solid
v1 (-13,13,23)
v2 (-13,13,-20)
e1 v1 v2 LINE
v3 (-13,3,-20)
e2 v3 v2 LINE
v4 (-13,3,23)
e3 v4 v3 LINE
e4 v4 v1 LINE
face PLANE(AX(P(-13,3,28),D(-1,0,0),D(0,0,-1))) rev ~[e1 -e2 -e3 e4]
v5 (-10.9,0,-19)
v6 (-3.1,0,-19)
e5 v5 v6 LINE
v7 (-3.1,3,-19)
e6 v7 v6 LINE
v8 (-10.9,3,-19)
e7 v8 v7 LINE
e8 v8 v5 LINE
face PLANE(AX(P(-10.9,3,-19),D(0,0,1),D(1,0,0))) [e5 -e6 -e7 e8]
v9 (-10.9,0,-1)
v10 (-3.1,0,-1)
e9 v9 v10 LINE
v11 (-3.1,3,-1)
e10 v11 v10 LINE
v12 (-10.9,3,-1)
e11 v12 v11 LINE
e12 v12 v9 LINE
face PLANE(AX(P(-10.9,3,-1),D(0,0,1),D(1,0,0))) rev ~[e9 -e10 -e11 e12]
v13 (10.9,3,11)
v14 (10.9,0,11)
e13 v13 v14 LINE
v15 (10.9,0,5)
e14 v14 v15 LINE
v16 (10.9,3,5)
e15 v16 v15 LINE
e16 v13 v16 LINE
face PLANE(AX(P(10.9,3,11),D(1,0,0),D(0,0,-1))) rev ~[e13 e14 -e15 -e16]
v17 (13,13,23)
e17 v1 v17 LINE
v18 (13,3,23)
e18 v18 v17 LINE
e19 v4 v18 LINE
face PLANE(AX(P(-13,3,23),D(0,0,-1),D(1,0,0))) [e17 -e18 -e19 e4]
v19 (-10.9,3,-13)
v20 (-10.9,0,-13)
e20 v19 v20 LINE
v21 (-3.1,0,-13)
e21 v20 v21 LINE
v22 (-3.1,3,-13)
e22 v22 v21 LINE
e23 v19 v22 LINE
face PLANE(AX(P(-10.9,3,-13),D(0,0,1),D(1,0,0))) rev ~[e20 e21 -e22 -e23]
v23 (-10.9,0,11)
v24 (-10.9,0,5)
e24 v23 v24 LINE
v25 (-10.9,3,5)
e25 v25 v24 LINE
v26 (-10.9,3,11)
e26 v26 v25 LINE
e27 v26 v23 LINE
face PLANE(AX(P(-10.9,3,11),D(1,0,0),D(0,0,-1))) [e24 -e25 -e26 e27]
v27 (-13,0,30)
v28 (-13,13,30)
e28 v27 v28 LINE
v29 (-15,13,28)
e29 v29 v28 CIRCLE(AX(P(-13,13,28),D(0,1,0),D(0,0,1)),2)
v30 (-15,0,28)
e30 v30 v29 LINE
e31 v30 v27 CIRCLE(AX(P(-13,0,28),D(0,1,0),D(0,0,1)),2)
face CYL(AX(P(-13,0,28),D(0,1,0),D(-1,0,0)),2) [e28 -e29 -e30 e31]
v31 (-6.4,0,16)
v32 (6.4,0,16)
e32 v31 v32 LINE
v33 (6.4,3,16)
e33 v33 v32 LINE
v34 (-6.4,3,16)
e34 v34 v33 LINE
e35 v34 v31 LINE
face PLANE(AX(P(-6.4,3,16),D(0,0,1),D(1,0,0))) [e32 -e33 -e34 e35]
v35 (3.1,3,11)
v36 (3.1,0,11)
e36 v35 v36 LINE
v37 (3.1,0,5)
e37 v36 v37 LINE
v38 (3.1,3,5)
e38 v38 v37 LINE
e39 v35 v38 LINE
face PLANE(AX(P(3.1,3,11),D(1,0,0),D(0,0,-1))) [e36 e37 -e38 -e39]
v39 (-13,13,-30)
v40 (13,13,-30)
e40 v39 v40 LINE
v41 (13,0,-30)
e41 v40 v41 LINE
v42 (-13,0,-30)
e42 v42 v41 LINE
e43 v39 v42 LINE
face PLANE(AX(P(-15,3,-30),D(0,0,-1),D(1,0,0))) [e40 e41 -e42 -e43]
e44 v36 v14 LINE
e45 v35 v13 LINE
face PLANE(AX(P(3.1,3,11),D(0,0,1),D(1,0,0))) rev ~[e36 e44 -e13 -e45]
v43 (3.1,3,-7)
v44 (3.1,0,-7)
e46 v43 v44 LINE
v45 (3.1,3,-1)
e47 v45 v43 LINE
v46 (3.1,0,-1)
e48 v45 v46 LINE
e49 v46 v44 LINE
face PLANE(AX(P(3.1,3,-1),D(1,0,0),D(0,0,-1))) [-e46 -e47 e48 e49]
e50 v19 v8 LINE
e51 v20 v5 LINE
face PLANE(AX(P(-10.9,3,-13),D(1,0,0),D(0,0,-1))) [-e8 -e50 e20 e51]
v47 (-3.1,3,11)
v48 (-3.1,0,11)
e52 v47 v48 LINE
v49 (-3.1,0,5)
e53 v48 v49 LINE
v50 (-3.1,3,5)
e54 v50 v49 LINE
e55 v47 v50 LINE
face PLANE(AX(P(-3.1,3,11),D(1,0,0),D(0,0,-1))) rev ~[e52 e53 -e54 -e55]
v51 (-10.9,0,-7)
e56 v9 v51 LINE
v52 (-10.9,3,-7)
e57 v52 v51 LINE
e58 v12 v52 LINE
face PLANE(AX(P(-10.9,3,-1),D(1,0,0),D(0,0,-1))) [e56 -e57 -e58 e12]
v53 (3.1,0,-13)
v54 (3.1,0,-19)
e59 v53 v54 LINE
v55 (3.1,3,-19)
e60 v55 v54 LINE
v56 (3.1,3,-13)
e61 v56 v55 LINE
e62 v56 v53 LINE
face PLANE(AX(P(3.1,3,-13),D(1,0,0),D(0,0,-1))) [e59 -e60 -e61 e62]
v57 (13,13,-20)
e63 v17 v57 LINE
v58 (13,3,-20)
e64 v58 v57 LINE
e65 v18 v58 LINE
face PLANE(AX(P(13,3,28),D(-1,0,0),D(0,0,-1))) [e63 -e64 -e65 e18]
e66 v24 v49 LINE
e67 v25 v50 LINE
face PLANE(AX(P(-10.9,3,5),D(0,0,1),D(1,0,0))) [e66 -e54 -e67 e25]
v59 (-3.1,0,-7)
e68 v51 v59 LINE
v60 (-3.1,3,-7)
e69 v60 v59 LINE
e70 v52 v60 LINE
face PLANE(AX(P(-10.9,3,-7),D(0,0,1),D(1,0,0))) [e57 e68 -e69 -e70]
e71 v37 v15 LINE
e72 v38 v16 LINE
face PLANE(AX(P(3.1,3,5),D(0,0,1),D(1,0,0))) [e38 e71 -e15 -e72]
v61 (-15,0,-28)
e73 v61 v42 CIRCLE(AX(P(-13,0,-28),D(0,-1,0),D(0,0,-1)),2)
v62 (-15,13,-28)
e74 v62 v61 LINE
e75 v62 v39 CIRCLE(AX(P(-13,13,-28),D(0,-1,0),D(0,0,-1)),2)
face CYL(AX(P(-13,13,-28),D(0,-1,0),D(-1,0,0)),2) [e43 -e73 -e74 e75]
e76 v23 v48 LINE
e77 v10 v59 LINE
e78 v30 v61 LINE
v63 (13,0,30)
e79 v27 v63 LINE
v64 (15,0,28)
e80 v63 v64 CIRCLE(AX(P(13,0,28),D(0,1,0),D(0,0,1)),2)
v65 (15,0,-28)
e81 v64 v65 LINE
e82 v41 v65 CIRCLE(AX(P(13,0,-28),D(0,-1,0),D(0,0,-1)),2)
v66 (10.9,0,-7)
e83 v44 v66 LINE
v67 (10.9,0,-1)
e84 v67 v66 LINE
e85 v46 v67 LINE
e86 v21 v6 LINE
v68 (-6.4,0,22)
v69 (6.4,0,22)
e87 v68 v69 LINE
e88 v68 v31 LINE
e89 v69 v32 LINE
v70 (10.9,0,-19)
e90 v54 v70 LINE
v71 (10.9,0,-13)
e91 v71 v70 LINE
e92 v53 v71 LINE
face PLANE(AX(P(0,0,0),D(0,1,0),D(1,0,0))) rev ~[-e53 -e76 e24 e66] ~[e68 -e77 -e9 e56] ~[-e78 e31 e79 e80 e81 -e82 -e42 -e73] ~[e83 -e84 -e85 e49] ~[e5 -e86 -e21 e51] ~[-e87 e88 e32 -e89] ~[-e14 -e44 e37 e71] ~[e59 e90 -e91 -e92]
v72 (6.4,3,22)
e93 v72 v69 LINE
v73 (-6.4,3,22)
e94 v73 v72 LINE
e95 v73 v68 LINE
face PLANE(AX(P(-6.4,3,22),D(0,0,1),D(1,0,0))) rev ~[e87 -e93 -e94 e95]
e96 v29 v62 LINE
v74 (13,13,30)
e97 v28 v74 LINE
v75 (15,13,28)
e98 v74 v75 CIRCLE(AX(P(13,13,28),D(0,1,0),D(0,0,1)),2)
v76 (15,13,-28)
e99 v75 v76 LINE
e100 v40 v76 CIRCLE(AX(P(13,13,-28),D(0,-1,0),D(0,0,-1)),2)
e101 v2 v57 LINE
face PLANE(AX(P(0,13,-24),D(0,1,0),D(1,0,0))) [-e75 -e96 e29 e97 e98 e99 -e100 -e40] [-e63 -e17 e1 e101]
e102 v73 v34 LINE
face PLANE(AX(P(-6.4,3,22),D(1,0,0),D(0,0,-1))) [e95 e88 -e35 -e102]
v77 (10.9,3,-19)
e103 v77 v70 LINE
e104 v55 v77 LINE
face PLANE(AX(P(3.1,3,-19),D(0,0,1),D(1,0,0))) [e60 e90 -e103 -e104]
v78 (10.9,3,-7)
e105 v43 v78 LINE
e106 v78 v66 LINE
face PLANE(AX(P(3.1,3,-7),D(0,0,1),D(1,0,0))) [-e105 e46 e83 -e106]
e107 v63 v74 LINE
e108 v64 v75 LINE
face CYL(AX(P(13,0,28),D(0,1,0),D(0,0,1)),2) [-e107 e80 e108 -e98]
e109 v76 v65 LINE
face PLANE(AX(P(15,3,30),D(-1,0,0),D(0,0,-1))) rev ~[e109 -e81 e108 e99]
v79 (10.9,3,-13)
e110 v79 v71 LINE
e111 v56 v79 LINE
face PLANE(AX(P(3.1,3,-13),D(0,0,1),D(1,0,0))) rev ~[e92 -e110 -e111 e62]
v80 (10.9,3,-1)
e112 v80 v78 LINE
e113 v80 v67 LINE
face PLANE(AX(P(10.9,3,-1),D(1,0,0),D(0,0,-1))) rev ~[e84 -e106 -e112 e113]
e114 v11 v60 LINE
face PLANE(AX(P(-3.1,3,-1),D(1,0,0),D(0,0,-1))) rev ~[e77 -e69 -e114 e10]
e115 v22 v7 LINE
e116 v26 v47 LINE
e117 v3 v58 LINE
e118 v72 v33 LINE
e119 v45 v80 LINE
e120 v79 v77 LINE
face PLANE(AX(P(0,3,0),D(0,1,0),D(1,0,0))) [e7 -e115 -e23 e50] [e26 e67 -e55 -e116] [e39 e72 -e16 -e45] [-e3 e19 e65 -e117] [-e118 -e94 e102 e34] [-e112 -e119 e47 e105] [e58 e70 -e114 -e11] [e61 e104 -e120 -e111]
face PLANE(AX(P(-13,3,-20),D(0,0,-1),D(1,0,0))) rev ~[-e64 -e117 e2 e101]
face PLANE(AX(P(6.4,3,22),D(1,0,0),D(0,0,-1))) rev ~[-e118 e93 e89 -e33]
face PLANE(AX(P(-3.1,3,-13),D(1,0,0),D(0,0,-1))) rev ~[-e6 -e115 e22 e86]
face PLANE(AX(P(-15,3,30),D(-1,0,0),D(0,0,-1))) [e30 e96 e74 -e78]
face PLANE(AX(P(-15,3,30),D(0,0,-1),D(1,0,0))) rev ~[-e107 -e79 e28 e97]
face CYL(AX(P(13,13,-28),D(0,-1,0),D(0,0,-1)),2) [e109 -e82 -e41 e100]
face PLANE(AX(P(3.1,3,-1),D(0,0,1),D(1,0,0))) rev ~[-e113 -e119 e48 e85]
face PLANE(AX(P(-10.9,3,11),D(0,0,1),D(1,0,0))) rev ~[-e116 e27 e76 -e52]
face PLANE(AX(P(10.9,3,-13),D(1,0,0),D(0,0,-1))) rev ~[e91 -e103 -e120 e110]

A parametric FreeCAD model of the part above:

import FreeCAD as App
import Part
import Sketcher

V = App.Vector
Q = App.Units.Quantity


def edges_at(feature, points):
    """Names of the edges that pass closest to the given points."""
    edges = feature.Shape.Edges
    near = lambda p: min(range(len(edges)), key=lambda i: edges[i].distToShape(Part.Vertex(*p))[0])
    return sorted({f"Edge{near(p) + 1}" for p in points})

doc = App.newDocument("Part")
body = doc.addObject("PartDesign::Body", "Body")

sketch1 = body.newObject("Sketcher::SketchObject", "Sketch")
sketch1.AttachmentSupport = (doc.getObject("XZ_Plane"), [""])
sketch1.MapMode = "FlatFace"
sketch1.addGeometry([
    Part.LineSegment(V(-15, -30, 0), V(-15, 30, 0)),
    Part.LineSegment(V(-15, 30, 0), V(15, 30, 0)),
    Part.LineSegment(V(15, 30, 0), V(15, -30, 0)),
    Part.LineSegment(V(15, -30, 0), V(-15, -30, 0)),
], False)
sketch1.addConstraint([
    Sketcher.Constraint("Coincident", 0, 2, 1, 1),
    Sketcher.Constraint("Coincident", 1, 2, 2, 1),
    Sketcher.Constraint("Coincident", 2, 2, 3, 1),
    Sketcher.Constraint("Coincident", 3, 2, 0, 1),
    Sketcher.Constraint("Vertical", 0),
    Sketcher.Constraint("Horizontal", 1),
    Sketcher.Constraint("Vertical", 2),
    Sketcher.Constraint("Horizontal", 3),
    Sketcher.Constraint("Symmetric", 0, 2, 2, 2, -1, 1),
    Sketcher.Constraint("DistanceX", 1, 1, 1, 2, Q("30 mm")),
    Sketcher.Constraint("DistanceY", 0, 1, 0, 2, Q("60 mm")),
])
pad1 = body.newObject("PartDesign::Pad", "Pad")
pad1.Profile = sketch1
pad1.Length = 3
pad1.Reversed = True

sketch2 = body.newObject("Sketcher::SketchObject", "Sketch001")
sketch2.AttachmentSupport = (doc.getObject("XZ_Plane"), [""])
sketch2.MapMode = "FlatFace"
sketch2.AttachmentOffset = App.Placement(V(0, 0, -3), App.Rotation())
sketch2.addGeometry([
    Part.LineSegment(V(-6.4, 16, 0), V(-6.4, 22, 0)),
    Part.LineSegment(V(-6.4, 22, 0), V(6.4, 22, 0)),
    Part.LineSegment(V(6.4, 22, 0), V(6.4, 16, 0)),
    Part.LineSegment(V(6.4, 16, 0), V(-6.4, 16, 0)),
    Part.LineSegment(V(-10.9, -7, 0), V(-10.9, -1, 0)),
    Part.LineSegment(V(-10.9, -1, 0), V(-3.1, -1, 0)),
    Part.LineSegment(V(-3.1, -1, 0), V(-3.1, -7, 0)),
    Part.LineSegment(V(-3.1, -7, 0), V(-10.9, -7, 0)),
    Part.LineSegment(V(-10.9, 5, 0), V(-10.9, 11, 0)),
    Part.LineSegment(V(-10.9, 11, 0), V(-3.1, 11, 0)),
    Part.LineSegment(V(-3.1, 11, 0), V(-3.1, 5, 0)),
    Part.LineSegment(V(-3.1, 5, 0), V(-10.9, 5, 0)),
    Part.LineSegment(V(-10.9, -19, 0), V(-10.9, -13, 0)),
    Part.LineSegment(V(-10.9, -13, 0), V(-3.1, -13, 0)),
    Part.LineSegment(V(-3.1, -13, 0), V(-3.1, -19, 0)),
    Part.LineSegment(V(-3.1, -19, 0), V(-10.9, -19, 0)),
    Part.LineSegment(V(3.1, 5, 0), V(3.1, 11, 0)),
    Part.LineSegment(V(3.1, 11, 0), V(10.9, 11, 0)),
    Part.LineSegment(V(10.9, 11, 0), V(10.9, 5, 0)),
    Part.LineSegment(V(10.9, 5, 0), V(3.1, 5, 0)),
    Part.LineSegment(V(3.1, -7, 0), V(3.1, -1, 0)),
    Part.LineSegment(V(3.1, -1, 0), V(10.9, -1, 0)),
    Part.LineSegment(V(10.9, -1, 0), V(10.9, -7, 0)),
    Part.LineSegment(V(10.9, -7, 0), V(3.1, -7, 0)),
    Part.LineSegment(V(3.1, -19, 0), V(3.1, -13, 0)),
    Part.LineSegment(V(3.1, -13, 0), V(10.9, -13, 0)),
    Part.LineSegment(V(10.9, -13, 0), V(10.9, -19, 0)),
    Part.LineSegment(V(10.9, -19, 0), V(3.1, -19, 0)),
], False)
sketch2.addConstraint([
    Sketcher.Constraint("Coincident", 0, 2, 1, 1),
    Sketcher.Constraint("Coincident", 1, 2, 2, 1),
    Sketcher.Constraint("Coincident", 2, 2, 3, 1),
    Sketcher.Constraint("Coincident", 3, 2, 0, 1),
    Sketcher.Constraint("Coincident", 4, 2, 5, 1),
    Sketcher.Constraint("Coincident", 5, 2, 6, 1),
    Sketcher.Constraint("Coincident", 6, 2, 7, 1),
    Sketcher.Constraint("Coincident", 7, 2, 4, 1),
    Sketcher.Constraint("Coincident", 8, 2, 9, 1),
    Sketcher.Constraint("Coincident", 9, 2, 10, 1),
    Sketcher.Constraint("Coincident", 10, 2, 11, 1),
    Sketcher.Constraint("Coincident", 11, 2, 8, 1),
    Sketcher.Constraint("Coincident", 12, 2, 13, 1),
    Sketcher.Constraint("Coincident", 13, 2, 14, 1),
    Sketcher.Constraint("Coincident", 14, 2, 15, 1),
    Sketcher.Constraint("Coincident", 15, 2, 12, 1),
    Sketcher.Constraint("Coincident", 16, 2, 17, 1),
    Sketcher.Constraint("Coincident", 17, 2, 18, 1),
    Sketcher.Constraint("Coincident", 18, 2, 19, 1),
    Sketcher.Constraint("Coincident", 19, 2, 16, 1),
    Sketcher.Constraint("Coincident", 20, 2, 21, 1),
    Sketcher.Constraint("Coincident", 21, 2, 22, 1),
    Sketcher.Constraint("Coincident", 22, 2, 23, 1),
    Sketcher.Constraint("Coincident", 23, 2, 20, 1),
    Sketcher.Constraint("Coincident", 24, 2, 25, 1),
    Sketcher.Constraint("Coincident", 25, 2, 26, 1),
    Sketcher.Constraint("Coincident", 26, 2, 27, 1),
    Sketcher.Constraint("Coincident", 27, 2, 24, 1),
    Sketcher.Constraint("Vertical", 0),
    Sketcher.Constraint("Horizontal", 1),
    Sketcher.Constraint("Vertical", 2),
    Sketcher.Constraint("Horizontal", 3),
    Sketcher.Constraint("Vertical", 4),
    Sketcher.Constraint("Horizontal", 5),
    Sketcher.Constraint("Vertical", 6),
    Sketcher.Constraint("Horizontal", 7),
    Sketcher.Constraint("Vertical", 8),
    Sketcher.Constraint("Horizontal", 9),
    Sketcher.Constraint("Vertical", 10),
    Sketcher.Constraint("Horizontal", 11),
    Sketcher.Constraint("Vertical", 12),
    Sketcher.Constraint("Horizontal", 13),
    Sketcher.Constraint("Vertical", 14),
    Sketcher.Constraint("Horizontal", 15),
    Sketcher.Constraint("Vertical", 16),
    Sketcher.Constraint("Horizontal", 17),
    Sketcher.Constraint("Vertical", 18),
    Sketcher.Constraint("Horizontal", 19),
    Sketcher.Constraint("Vertical", 20),
    Sketcher.Constraint("Horizontal", 21),
    Sketcher.Constraint("Vertical", 22),
    Sketcher.Constraint("Horizontal", 23),
    Sketcher.Constraint("Vertical", 24),
    Sketcher.Constraint("Horizontal", 25),
    Sketcher.Constraint("Vertical", 26),
    Sketcher.Constraint("Horizontal", 27),
    Sketcher.Constraint("Symmetric", 9, 2, 16, 2, -2),
    Sketcher.Constraint("Symmetric", 11, 2, 18, 2, -2),
    Sketcher.Constraint("Symmetric", 5, 2, 20, 2, -2),
    Sketcher.Constraint("Symmetric", 7, 2, 22, 2, -2),
    Sketcher.Constraint("Symmetric", 13, 2, 24, 2, -2),
    Sketcher.Constraint("Symmetric", 15, 2, 26, 2, -2),
    Sketcher.Constraint("Vertical", 7, 2, 8, 2),
    Sketcher.Constraint("Vertical", 6, 2, 9, 2),
    Sketcher.Constraint("Vertical", 11, 2, 12, 2),
    Sketcher.Constraint("Vertical", 10, 2, 13, 2),
    Sketcher.Constraint("Equal", 2, 4),
    Sketcher.Constraint("Equal", 6, 8),
    Sketcher.Constraint("Equal", 10, 12),
    Sketcher.Constraint("DistanceY", 0, 1, 0, 2, Q("6 mm")),
    Sketcher.Constraint("DistanceX", 1, 1, 1, 2, Q("12.8 mm")),
    Sketcher.Constraint("DistanceX", 5, 1, 5, 2, Q("7.8 mm")),
    Sketcher.Constraint("DistanceY", -1, 1, 0, 2, Q("22 mm")),
    Sketcher.Constraint("DistanceY", 4, 2, -1, 1, Q("1 mm")),
    Sketcher.Constraint("DistanceY", -1, 1, 8, 2, Q("11 mm")),
    Sketcher.Constraint("DistanceY", 12, 2, -1, 1, Q("13 mm")),
    Sketcher.Constraint("DistanceX", 9, 2, 17, 2, Q("14 mm")),
    Sketcher.Constraint("DistanceX", 0, 2, -1, 1, Q("6.4 mm")),
])
pocket1 = body.newObject("PartDesign::Pocket", "Pocket")
pocket1.Profile = sketch2
pocket1.Length = 3
pocket1.Reversed = True

sketch3 = body.newObject("Sketcher::SketchObject", "Sketch002")
sketch3.AttachmentSupport = (doc.getObject("XZ_Plane"), [""])
sketch3.MapMode = "FlatFace"
sketch3.AttachmentOffset = App.Placement(V(0, 0, -3), App.Rotation())
sketch3.addGeometry([
    Part.LineSegment(V(-15, -30, 0), V(-15, 30, 0)),
    Part.LineSegment(V(-15, 30, 0), V(15, 30, 0)),
    Part.LineSegment(V(15, 30, 0), V(15, -30, 0)),
    Part.LineSegment(V(15, -30, 0), V(-15, -30, 0)),
    Part.LineSegment(V(13, 28, 0), V(-13, 28, 0)),
    Part.LineSegment(V(-13, 28, 0), V(-13, -28, 0)),
    Part.LineSegment(V(-13, -28, 0), V(13, -28, 0)),
    Part.LineSegment(V(13, -28, 0), V(13, 28, 0)),
], False)
sketch3.addConstraint([
    Sketcher.Constraint("Coincident", 0, 2, 1, 1),
    Sketcher.Constraint("Coincident", 1, 2, 2, 1),
    Sketcher.Constraint("Coincident", 2, 2, 3, 1),
    Sketcher.Constraint("Coincident", 3, 2, 0, 1),
    Sketcher.Constraint("Coincident", 4, 2, 5, 1),
    Sketcher.Constraint("Coincident", 5, 2, 6, 1),
    Sketcher.Constraint("Coincident", 6, 2, 7, 1),
    Sketcher.Constraint("Coincident", 7, 2, 4, 1),
    Sketcher.Constraint("Vertical", 0),
    Sketcher.Constraint("Horizontal", 1),
    Sketcher.Constraint("Vertical", 2),
    Sketcher.Constraint("Horizontal", 3),
    Sketcher.Constraint("Horizontal", 4),
    Sketcher.Constraint("Vertical", 5),
    Sketcher.Constraint("Horizontal", 6),
    Sketcher.Constraint("Vertical", 7),
    Sketcher.Constraint("Symmetric", 0, 2, 2, 2, -1, 1),
    Sketcher.Constraint("Symmetric", 4, 2, 6, 2, -1, 1),
    Sketcher.Constraint("DistanceX", 1, 1, 1, 2, Q("30 mm")),
    Sketcher.Constraint("DistanceX", 4, 2, 4, 1, Q("26 mm")),
    Sketcher.Constraint("DistanceY", 0, 1, 0, 2, Q("60 mm")),
    Sketcher.Constraint("DistanceY", 5, 2, 5, 1, Q("56 mm")),
])
pad2 = body.newObject("PartDesign::Pad", "Pad001")
pad2.Profile = sketch3
pad2.Length = 10
pad2.Reversed = True

sketch4 = body.newObject("Sketcher::SketchObject", "Sketch003")
sketch4.AttachmentSupport = (doc.getObject("XZ_Plane"), [""])
sketch4.MapMode = "FlatFace"
sketch4.AttachmentOffset = App.Placement(V(0, 0, -3), App.Rotation())
sketch4.addGeometry([
    Part.LineSegment(V(-13, -28, 0), V(-13, -20, 0)),
    Part.LineSegment(V(-13, -20, 0), V(13, -20, 0)),
    Part.LineSegment(V(13, -20, 0), V(13, -28, 0)),
    Part.LineSegment(V(13, -28, 0), V(-13, -28, 0)),
    Part.LineSegment(V(-13, 23, 0), V(-13, 28, 0)),
    Part.LineSegment(V(-13, 28, 0), V(13, 28, 0)),
    Part.LineSegment(V(13, 28, 0), V(13, 23, 0)),
    Part.LineSegment(V(13, 23, 0), V(-13, 23, 0)),
], False)
sketch4.addConstraint([
    Sketcher.Constraint("Coincident", 0, 2, 1, 1),
    Sketcher.Constraint("Coincident", 1, 2, 2, 1),
    Sketcher.Constraint("Coincident", 2, 2, 3, 1),
    Sketcher.Constraint("Coincident", 3, 2, 0, 1),
    Sketcher.Constraint("Coincident", 4, 2, 5, 1),
    Sketcher.Constraint("Coincident", 5, 2, 6, 1),
    Sketcher.Constraint("Coincident", 6, 2, 7, 1),
    Sketcher.Constraint("Coincident", 7, 2, 4, 1),
    Sketcher.Constraint("Vertical", 0),
    Sketcher.Constraint("Horizontal", 1),
    Sketcher.Constraint("Vertical", 2),
    Sketcher.Constraint("Horizontal", 3),
    Sketcher.Constraint("Vertical", 4),
    Sketcher.Constraint("Horizontal", 5),
    Sketcher.Constraint("Vertical", 6),
    Sketcher.Constraint("Horizontal", 7),
    Sketcher.Constraint("Symmetric", 2, 2, 4, 2, -1, 1),
    Sketcher.Constraint("Vertical", 3, 2, 4, 2),
    Sketcher.Constraint("Vertical", 2, 2, 5, 2),
    Sketcher.Constraint("DistanceX", 1, 1, 1, 2, Q("26 mm")),
    Sketcher.Constraint("DistanceY", 0, 1, 0, 2, Q("8 mm")),
    Sketcher.Constraint("DistanceY", 4, 1, 4, 2, Q("5 mm")),
    Sketcher.Constraint("DistanceY", 0, 2, -1, 1, Q("20 mm")),
])
pad3 = body.newObject("PartDesign::Pad", "Pad002")
pad3.Profile = sketch4
pad3.Length = 10
pad3.Reversed = True
doc.recompute()

fillet = body.newObject("PartDesign::Fillet", "Fillet")
fillet.Base = (pad3, edges_at(pad3, [
    (15, 6.5, 30),
    (-15, 6.5, 30),
    (-15, 6.5, -30),
    (15, 6.5, -30),
]))
fillet.Radius = 2

doc.recompute()
